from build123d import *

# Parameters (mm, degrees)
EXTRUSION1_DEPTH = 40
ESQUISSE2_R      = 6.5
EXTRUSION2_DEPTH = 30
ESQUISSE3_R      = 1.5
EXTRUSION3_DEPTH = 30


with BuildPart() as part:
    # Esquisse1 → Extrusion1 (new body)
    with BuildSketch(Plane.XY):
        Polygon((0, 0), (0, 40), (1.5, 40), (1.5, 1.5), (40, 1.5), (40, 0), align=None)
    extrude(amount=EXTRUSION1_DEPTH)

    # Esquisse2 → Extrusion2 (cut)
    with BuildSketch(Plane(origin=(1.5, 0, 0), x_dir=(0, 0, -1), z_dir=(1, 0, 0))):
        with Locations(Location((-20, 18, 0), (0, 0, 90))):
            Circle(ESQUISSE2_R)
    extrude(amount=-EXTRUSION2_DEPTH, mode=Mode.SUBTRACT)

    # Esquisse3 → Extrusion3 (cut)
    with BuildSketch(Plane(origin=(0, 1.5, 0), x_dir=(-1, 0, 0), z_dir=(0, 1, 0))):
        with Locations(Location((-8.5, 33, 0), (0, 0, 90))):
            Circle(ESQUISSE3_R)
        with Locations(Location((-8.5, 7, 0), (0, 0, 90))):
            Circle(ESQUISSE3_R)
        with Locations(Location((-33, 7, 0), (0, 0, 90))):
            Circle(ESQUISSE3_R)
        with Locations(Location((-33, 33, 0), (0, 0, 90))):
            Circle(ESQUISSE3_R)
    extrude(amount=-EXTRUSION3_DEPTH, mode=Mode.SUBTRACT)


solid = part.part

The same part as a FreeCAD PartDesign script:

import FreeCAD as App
import Part
import Sketcher

V = App.Vector
Q = App.Units.Quantity

doc = App.newDocument("Part")
body = doc.addObject("PartDesign::Body", "Body")

sketch1 = body.newObject("Sketcher::SketchObject", "Sketch")
sketch1.AttachmentSupport = (doc.getObject("XY_Plane"), [""])
sketch1.MapMode = "FlatFace"
sketch1.addGeometry([
    Part.LineSegment(V(0, 40, 0), V(0, 0, 0)),
    Part.LineSegment(V(0, 0, 0), V(40, 0, 0)),
    Part.LineSegment(V(40, 0, 0), V(40, 1.5, 0)),
    Part.LineSegment(V(40, 1.5, 0), V(1.5, 1.5, 0)),
    Part.LineSegment(V(1.5, 1.5, 0), V(1.5, 40, 0)),
    Part.LineSegment(V(1.5, 40, 0), V(0, 40, 0)),
], False)
sketch1.addConstraint([
    Sketcher.Constraint("Coincident", 0, 2, 1, 1),
    Sketcher.Constraint("Coincident", 1, 2, 2, 1),
    Sketcher.Constraint("Coincident", 2, 2, 3, 1),
    Sketcher.Constraint("Coincident", 3, 2, 4, 1),
    Sketcher.Constraint("Coincident", 4, 2, 5, 1),
    Sketcher.Constraint("Coincident", 5, 2, 0, 1),
    Sketcher.Constraint("Vertical", 0),
    Sketcher.Constraint("Horizontal", 1),
    Sketcher.Constraint("Vertical", 2),
    Sketcher.Constraint("Horizontal", 3),
    Sketcher.Constraint("Vertical", 4),
    Sketcher.Constraint("Horizontal", 5),
    Sketcher.Constraint("Coincident", 0, 2, -1, 1),
    Sketcher.Constraint("Equal", 1, 0),
    Sketcher.Constraint("Equal", 5, 2),
    Sketcher.Constraint("DistanceX", 1, 1, 1, 2, Q("40 mm")),
    Sketcher.Constraint("DistanceX", 3, 2, 3, 1, Q("38.5 mm")),
])
pad1 = body.newObject("PartDesign::Pad", "Pad")
pad1.Profile = sketch1
pad1.Length = 40

sketch2 = body.newObject("Sketcher::SketchObject", "Sketch001")
sketch2.AttachmentSupport = (doc.getObject("YZ_Plane"), [""])
sketch2.MapMode = "FlatFace"
sketch2.AttachmentOffset = App.Placement(V(0, 0, 1.5), App.Rotation())
sketch2.addGeometry(Part.Circle(V(18, 20, 0), V(0, 0, 1), 6.5), False)
sketch2.addConstraint([
    Sketcher.Constraint("Diameter", 0, Q("13 mm")),
    Sketcher.Constraint("DistanceX", -1, 1, 0, 3, Q("18 mm")),
    Sketcher.Constraint("DistanceY", -1, 1, 0, 3, Q("20 mm")),
])
pocket1 = body.newObject("PartDesign::Pocket", "Pocket")
pocket1.Profile = sketch2
pocket1.Length = 30

sketch3 = body.newObject("Sketcher::SketchObject", "Sketch002")
sketch3.AttachmentSupport = (doc.getObject("XZ_Plane"), [""])
sketch3.MapMode = "FlatFace"
sketch3.AttachmentOffset = App.Placement(V(0, 0, -1.5), App.Rotation())
sketch3.addGeometry([
    Part.Circle(V(8.5, 33, 0), V(0, 0, 1), 1.5),
    Part.Circle(V(8.5, 7, 0), V(0, 0, 1), 1.5),
    Part.Circle(V(33, 7, 0), V(0, 0, 1), 1.5),
    Part.Circle(V(33, 33, 0), V(0, 0, 1), 1.5),
], False)
sketch3.addConstraint([
    Sketcher.Constraint("Equal", 0, 1),
    Sketcher.Constraint("Equal", 1, 2),
    Sketcher.Constraint("Equal", 2, 3),
    Sketcher.Constraint("Horizontal", 1, 3, 2, 3),
    Sketcher.Constraint("Horizontal", 0, 3, 3, 3),
    Sketcher.Constraint("Vertical", 0, 3, 1, 3),
    Sketcher.Constraint("Vertical", 2, 3, 3, 3),
    Sketcher.Constraint("Diameter", 0, Q("3 mm")),
    Sketcher.Constraint("DistanceY", -1, 1, 0, 3, Q("33 mm")),
    Sketcher.Constraint("DistanceY", -1, 1, 1, 3, Q("7 mm")),
    Sketcher.Constraint("DistanceX", -1, 1, 2, 3, Q("33 mm")),
    Sketcher.Constraint("DistanceX", -1, 1, 0, 3, Q("8.5 mm")),
])
pocket2 = body.newObject("PartDesign::Pocket", "Pocket001")
pocket2.Profile = sketch3
pocket2.Length = 30
pocket2.Reversed = True

doc.recompute()
